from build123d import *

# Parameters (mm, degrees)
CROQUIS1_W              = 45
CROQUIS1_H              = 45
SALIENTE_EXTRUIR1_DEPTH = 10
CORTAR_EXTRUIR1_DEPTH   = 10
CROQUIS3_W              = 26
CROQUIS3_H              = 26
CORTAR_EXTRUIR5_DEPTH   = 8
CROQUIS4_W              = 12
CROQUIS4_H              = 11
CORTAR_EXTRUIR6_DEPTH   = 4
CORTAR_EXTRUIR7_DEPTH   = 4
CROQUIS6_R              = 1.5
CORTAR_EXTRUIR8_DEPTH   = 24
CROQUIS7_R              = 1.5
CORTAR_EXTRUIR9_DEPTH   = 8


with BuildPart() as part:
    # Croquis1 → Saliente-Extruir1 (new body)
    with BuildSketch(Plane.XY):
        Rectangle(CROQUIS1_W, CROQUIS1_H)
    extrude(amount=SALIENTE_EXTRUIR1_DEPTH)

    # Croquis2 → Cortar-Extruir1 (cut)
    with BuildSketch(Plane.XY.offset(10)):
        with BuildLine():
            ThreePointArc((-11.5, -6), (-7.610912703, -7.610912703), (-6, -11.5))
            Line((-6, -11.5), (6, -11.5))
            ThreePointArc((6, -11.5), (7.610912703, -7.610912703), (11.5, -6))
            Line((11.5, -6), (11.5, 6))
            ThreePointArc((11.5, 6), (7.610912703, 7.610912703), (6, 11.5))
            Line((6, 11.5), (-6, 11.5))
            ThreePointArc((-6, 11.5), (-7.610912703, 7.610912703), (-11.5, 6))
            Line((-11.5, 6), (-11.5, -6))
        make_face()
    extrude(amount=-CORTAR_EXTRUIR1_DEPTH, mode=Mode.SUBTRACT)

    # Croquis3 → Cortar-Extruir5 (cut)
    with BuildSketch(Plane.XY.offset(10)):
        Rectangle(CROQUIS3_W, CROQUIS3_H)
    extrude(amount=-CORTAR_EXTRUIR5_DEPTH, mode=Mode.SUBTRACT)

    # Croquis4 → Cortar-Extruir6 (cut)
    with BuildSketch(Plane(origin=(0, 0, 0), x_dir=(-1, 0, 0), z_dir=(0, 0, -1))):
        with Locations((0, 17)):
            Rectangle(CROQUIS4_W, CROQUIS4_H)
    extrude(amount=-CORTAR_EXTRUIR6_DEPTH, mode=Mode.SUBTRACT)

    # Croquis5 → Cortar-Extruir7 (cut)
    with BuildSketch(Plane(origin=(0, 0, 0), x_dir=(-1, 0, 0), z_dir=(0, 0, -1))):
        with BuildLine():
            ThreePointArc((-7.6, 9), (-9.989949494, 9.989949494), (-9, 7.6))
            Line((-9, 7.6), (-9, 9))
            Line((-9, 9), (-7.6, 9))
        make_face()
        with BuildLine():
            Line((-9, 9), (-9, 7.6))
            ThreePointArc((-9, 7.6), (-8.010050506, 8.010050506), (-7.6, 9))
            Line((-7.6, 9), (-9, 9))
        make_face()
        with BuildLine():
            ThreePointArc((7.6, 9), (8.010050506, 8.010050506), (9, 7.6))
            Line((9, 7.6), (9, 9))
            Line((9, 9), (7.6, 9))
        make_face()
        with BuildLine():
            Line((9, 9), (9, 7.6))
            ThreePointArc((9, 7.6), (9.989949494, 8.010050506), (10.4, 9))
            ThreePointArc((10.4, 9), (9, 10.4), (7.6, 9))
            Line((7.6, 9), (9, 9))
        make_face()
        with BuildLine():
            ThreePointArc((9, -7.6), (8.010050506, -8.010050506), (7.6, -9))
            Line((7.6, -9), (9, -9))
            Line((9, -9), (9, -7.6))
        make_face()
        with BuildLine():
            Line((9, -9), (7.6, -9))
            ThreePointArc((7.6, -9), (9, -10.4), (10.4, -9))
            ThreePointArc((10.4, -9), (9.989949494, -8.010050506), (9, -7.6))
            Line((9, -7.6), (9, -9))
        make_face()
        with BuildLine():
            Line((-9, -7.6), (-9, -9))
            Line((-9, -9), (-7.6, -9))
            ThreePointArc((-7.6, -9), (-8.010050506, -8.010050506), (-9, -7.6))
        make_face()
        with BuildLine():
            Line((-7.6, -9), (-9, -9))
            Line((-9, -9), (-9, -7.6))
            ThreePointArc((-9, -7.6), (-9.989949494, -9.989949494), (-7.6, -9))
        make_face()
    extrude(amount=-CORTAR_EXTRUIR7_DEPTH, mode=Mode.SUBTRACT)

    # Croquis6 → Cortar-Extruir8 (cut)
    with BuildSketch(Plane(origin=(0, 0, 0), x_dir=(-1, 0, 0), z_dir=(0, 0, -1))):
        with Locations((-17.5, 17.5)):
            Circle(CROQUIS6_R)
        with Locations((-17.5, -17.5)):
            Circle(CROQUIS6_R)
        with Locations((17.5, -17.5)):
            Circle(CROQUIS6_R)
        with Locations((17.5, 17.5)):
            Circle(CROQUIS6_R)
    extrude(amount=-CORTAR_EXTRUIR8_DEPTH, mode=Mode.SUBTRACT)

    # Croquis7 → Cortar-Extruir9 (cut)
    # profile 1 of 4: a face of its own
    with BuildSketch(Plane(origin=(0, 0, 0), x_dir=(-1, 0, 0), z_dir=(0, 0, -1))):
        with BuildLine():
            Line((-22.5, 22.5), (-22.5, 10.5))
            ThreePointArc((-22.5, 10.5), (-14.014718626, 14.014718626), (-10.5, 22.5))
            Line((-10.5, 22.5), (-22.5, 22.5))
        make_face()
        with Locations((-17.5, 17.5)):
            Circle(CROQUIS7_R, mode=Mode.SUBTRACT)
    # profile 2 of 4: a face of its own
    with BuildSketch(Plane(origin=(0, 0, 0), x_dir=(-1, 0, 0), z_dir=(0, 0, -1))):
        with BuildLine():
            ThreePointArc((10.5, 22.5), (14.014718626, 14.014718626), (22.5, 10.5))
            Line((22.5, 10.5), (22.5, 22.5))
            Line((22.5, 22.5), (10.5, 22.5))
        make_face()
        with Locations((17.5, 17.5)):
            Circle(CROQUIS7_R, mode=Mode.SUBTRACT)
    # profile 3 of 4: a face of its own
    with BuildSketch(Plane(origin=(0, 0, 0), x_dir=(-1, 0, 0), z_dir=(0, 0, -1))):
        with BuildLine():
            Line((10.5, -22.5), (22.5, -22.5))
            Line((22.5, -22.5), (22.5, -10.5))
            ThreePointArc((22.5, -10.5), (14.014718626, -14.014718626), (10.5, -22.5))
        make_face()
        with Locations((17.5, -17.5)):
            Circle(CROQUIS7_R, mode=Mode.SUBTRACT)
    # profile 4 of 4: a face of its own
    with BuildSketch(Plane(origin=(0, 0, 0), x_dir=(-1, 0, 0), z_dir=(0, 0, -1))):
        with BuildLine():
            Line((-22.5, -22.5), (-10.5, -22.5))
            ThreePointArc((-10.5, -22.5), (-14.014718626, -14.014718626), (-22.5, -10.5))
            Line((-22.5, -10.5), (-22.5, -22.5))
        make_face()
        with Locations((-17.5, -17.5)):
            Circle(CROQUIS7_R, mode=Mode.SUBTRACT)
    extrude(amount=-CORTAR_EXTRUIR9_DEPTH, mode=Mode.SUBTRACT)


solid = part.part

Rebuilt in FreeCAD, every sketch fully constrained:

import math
import FreeCAD as App
import Part
import Sketcher
from FreeCAD import Vector

doc = App.newDocument("Part")
body = doc.addObject("PartDesign::Body", "Body")

# Sketch on XY plane
sketch1 = doc.addObject("Sketcher::SketchObject", "Sketch")
body.addObject(sketch1)
sketch1.AttachmentSupport = (doc.XY_Plane, [""])
sketch1.MapMode = "FlatFace"
sketch1.addGeometry([
    Part.LineSegment(Vector(-22.5, 22.5, 0), Vector(-22.5, -22.5, 0)),
    Part.LineSegment(Vector(-22.5, -22.5, 0), Vector(22.5, -22.5, 0)),
    Part.LineSegment(Vector(22.5, -22.5, 0), Vector(22.5, 22.5, 0)),
    Part.LineSegment(Vector(22.5, 22.5, 0), Vector(-22.5, 22.5, 0)),
], False)
sketch1.addConstraint([
    Sketcher.Constraint("Coincident", 0, 2, 1, 1),
    Sketcher.Constraint("Coincident", 1, 2, 2, 1),
    Sketcher.Constraint("Coincident", 2, 2, 3, 1),
    Sketcher.Constraint("Coincident", 3, 2, 0, 1),
    Sketcher.Constraint("Vertical", 0),
    Sketcher.Constraint("Horizontal", 1),
    Sketcher.Constraint("Vertical", 2),
    Sketcher.Constraint("Horizontal", 3),
    Sketcher.Constraint("Symmetric", 0, 2, 2, 2, -1, 1),
    Sketcher.Constraint("Equal", 3, 0),
    Sketcher.Constraint("DistanceX", 1, 1, 1, 2, 45.0),
])
pad1 = doc.addObject("PartDesign::Pad", "Pad")
body.addObject(pad1)
pad1.Profile = sketch1
pad1.Length = 10

# Sketch on XY plane
sketch2 = doc.addObject("Sketcher::SketchObject", "Sketch001")
body.addObject(sketch2)
sketch2.AttachmentSupport = (doc.XY_Plane, [""])
sketch2.MapMode = "FlatFace"
sketch2.AttachmentOffset = App.Placement(Vector(0, 0, 10), App.Rotation())
sketch2.addGeometry([
    Part.ArcOfCircle(Part.Circle(Vector(-11.5, -11.5, 0), Vector(0, 0, 1), 5.5), math.radians(0), math.radians(90)),  # 0
    Part.LineSegment(Vector(-6, -11.5, 0), Vector(6, -11.5, 0)),  # 1
    Part.ArcOfCircle(Part.Circle(Vector(11.5, -11.5, 0), Vector(0, 0, 1), 5.5), math.radians(90), math.radians(180)),  # 2
    Part.LineSegment(Vector(11.5, -6, 0), Vector(11.5, 6, 0)),  # 3
    Part.ArcOfCircle(Part.Circle(Vector(11.5, 11.5, 0), Vector(0, 0, 1), 5.5), math.radians(180), math.radians(270)),  # 4
    Part.LineSegment(Vector(6, 11.5, 0), Vector(-6, 11.5, 0)),  # 5
    Part.ArcOfCircle(Part.Circle(Vector(-11.5, 11.5, 0), Vector(0, 0, 1), 5.5), math.radians(-90), math.radians(0)),  # 6
    Part.LineSegment(Vector(-11.5, 6, 0), Vector(-11.5, -6, 0)),  # 7
], False)
sketch2.addConstraint([
    Sketcher.Constraint("Coincident", 0, 1, 1, 1),
    Sketcher.Constraint("Coincident", 1, 2, 2, 2),
    Sketcher.Constraint("Coincident", 2, 1, 3, 1),
    Sketcher.Constraint("Coincident", 3, 2, 4, 2),
    Sketcher.Constraint("Coincident", 4, 1, 5, 1),
    Sketcher.Constraint("Coincident", 5, 2, 6, 2),
    Sketcher.Constraint("Coincident", 6, 1, 7, 1),
    Sketcher.Constraint("Coincident", 7, 2, 0, 2),
    Sketcher.Constraint("Horizontal", 1),
    Sketcher.Constraint("Vertical", 3),
    Sketcher.Constraint("Horizontal", 5),
    Sketcher.Constraint("Vertical", 7),
    Sketcher.Constraint("Equal", 0, 2),
    Sketcher.Constraint("Equal", 2, 4),
    Sketcher.Constraint("Equal", 4, 6),
    Sketcher.Constraint("Symmetric", 0, 3, 4, 3, -1, 1),
    Sketcher.Constraint("Symmetric", 2, 3, 6, 3, -1, 1),
    Sketcher.Constraint("Symmetric", 0, 3, 2, 3, -2),
    Sketcher.Constraint("Horizontal", 2, 3, 0, 1),
    Sketcher.Constraint("Horizontal", 6, 3, 4, 1),
    Sketcher.Constraint("Vertical", 4, 3, 2, 1),
    Sketcher.Constraint("Vertical", 0, 3, 6, 1),
    Sketcher.Constraint("Equal", 5, 3),
    Sketcher.Constraint("Radius", 0, 5.5),
    Sketcher.Constraint("DistanceX", 1, 1, 1, 2, 12.0),
])
pocket1 = doc.addObject("PartDesign::Pocket", "Pocket")
body.addObject(pocket1)
pocket1.Profile = sketch2
pocket1.Length = 10

# Sketch on XY plane
sketch3 = doc.addObject("Sketcher::SketchObject", "Sketch002")
body.addObject(sketch3)
sketch3.AttachmentSupport = (doc.XY_Plane, [""])
sketch3.MapMode = "FlatFace"
sketch3.AttachmentOffset = App.Placement(Vector(0, 0, 10), App.Rotation())
sketch3.addGeometry([
    Part.LineSegment(Vector(-13, 13, 0), Vector(-13, -13, 0)),
    Part.LineSegment(Vector(-13, -13, 0), Vector(13, -13, 0)),
    Part.LineSegment(Vector(13, -13, 0), Vector(13, 13, 0)),
    Part.LineSegment(Vector(13, 13, 0), Vector(-13, 13, 0)),
], False)
sketch3.addConstraint([
    Sketcher.Constraint("Coincident", 0, 2, 1, 1),
    Sketcher.Constraint("Coincident", 1, 2, 2, 1),
    Sketcher.Constraint("Coincident", 2, 2, 3, 1),
    Sketcher.Constraint("Coincident", 3, 2, 0, 1),
    Sketcher.Constraint("Vertical", 0),
    Sketcher.Constraint("Horizontal", 1),
    Sketcher.Constraint("Vertical", 2),
    Sketcher.Constraint("Horizontal", 3),
    Sketcher.Constraint("Symmetric", 0, 2, 2, 2, -1, 1),
    Sketcher.Constraint("Equal", 3, 0),
    Sketcher.Constraint("DistanceX", 1, 1, 1, 2, 26.0),
])
pocket2 = doc.addObject("PartDesign::Pocket", "Pocket001")
body.addObject(pocket2)
pocket2.Profile = sketch3
pocket2.Length = 8

# Sketch on XY plane
sketch4 = doc.addObject("Sketcher::SketchObject", "Sketch003")
body.addObject(sketch4)
sketch4.AttachmentSupport = (doc.XY_Plane, [""])
sketch4.MapMode = "FlatFace"
sketch4.addGeometry([
    Part.LineSegment(Vector(6, 22.5, 0), Vector(6, 11.5, 0)),
    Part.LineSegment(Vector(6, 11.5, 0), Vector(-6, 11.5, 0)),
    Part.LineSegment(Vector(-6, 11.5, 0), Vector(-6, 22.5, 0)),
    Part.LineSegment(Vector(-6, 22.5, 0), Vector(6, 22.5, 0)),
], False)
sketch4.addConstraint([
    Sketcher.Constraint("Coincident", 0, 2, 1, 1),
    Sketcher.Constraint("Coincident", 1, 2, 2, 1),
    Sketcher.Constraint("Coincident", 2, 2, 3, 1),
    Sketcher.Constraint("Coincident", 3, 2, 0, 1),
    Sketcher.Constraint("Vertical", 0),
    Sketcher.Constraint("Horizontal", 1),
    Sketcher.Constraint("Vertical", 2),
    Sketcher.Constraint("Horizontal", 3),
    Sketcher.Constraint("DistanceX", 1, 2, 1, 1, 12.0),
    Sketcher.Constraint("DistanceY", 0, 2, 0, 1, 11.0),
    Sketcher.Constraint("DistanceX", -1, 1, 0, 2, 6.0),
    Sketcher.Constraint("DistanceY", -1, 1, 0, 2, 11.5),
])
pocket3 = doc.addObject("PartDesign::Pocket", "Pocket002")
body.addObject(pocket3)
pocket3.Profile = sketch4
pocket3.Length = 4
pocket3.Reversed = True

# Sketch on XY plane
sketch5 = doc.addObject("Sketcher::SketchObject", "Sketch004")
body.addObject(sketch5)
sketch5.AttachmentSupport = (doc.XY_Plane, [""])
sketch5.MapMode = "FlatFace"
sketch5.addGeometry([
    Part.ArcOfCircle(Part.Circle(Vector(9, 9, 0), Vector(0, 0, 1), 1.4), math.radians(-90), math.radians(180)),  # 0
    Part.ArcOfCircle(Part.Circle(Vector(9, 9, 0), Vector(0, 0, 1), 1.4), math.radians(180), math.radians(270)),  # 1
    Part.ArcOfCircle(Part.Circle(Vector(-9, 9, 0), Vector(0, 0, 1), 1.4), math.radians(-90), math.radians(0)),  # 2
    Part.ArcOfCircle(Part.Circle(Vector(-9, 9, 0), Vector(0, 0, 1), 1.4), math.radians(180), math.radians(270)),  # 3
    Part.ArcOfCircle(Part.Circle(Vector(-9, 9, 0), Vector(0, 0, 1), 1.4), math.radians(0), math.radians(180)),  # 4
    Part.ArcOfCircle(Part.Circle(Vector(-9, -9, 0), Vector(0, 0, 1), 1.4), math.radians(0), math.radians(90)),  # 5
    Part.ArcOfCircle(Part.Circle(Vector(-9, -9, 0), Vector(0, 0, 1), 1.4), math.radians(180), math.radians(360)),  # 6
    Part.ArcOfCircle(Part.Circle(Vector(-9, -9, 0), Vector(0, 0, 1), 1.4), math.radians(90), math.radians(180)),  # 7
    Part.ArcOfCircle(Part.Circle(Vector(9, -9, 0), Vector(0, 0, 1), 1.4), math.radians(90), math.radians(180)),  # 8
    Part.ArcOfCircle(Part.Circle(Vector(9, -9, 0), Vector(0, 0, 1), 1.4), math.radians(180), math.radians(450)),  # 9
], False)
sketch5.addConstraint([
    Sketcher.Constraint("Tangent", 0, 1, 1, 2),
    Sketcher.Constraint("Coincident", 1, 1, 0, 2),
    Sketcher.Constraint("Tangent", 2, 1, 3, 2),
    Sketcher.Constraint("Tangent", 3, 1, 4, 2),
    Sketcher.Constraint("Tangent", 4, 1, 2, 2),
    Sketcher.Constraint("Tangent", 5, 1, 6, 2),
    Sketcher.Constraint("Tangent", 6, 1, 7, 2),
    Sketcher.Constraint("Tangent", 7, 1, 5, 2),
    Sketcher.Constraint("Tangent", 8, 1, 9, 2),
    Sketcher.Constraint("Coincident", 9, 1, 8, 2),
    Sketcher.Constraint("Equal", 1, 2),
    Sketcher.Constraint("Equal", 4, 5),
    Sketcher.Constraint("Equal", 7, 8),
    Sketcher.Constraint("Symmetric", 0, 3, 5, 3, -1, 1),
    Sketcher.Constraint("Symmetric", 2, 3, 8, 3, -1, 1),
    Sketcher.Constraint("Symmetric", 0, 3, 2, 3, -2),
    Sketcher.Constraint("Horizontal", 4, 3, 1, 1),
    Sketcher.Constraint("Horizontal", 1, 1, 3, 1),
    Sketcher.Constraint("Horizontal", 3, 1, 4, 1),
    Sketcher.Constraint("Horizontal", 9, 3, 5, 1),
    Sketcher.Constraint("Horizontal", 5, 1, 6, 1),
    Sketcher.Constraint("Horizontal", 6, 1, 9, 1),
    Sketcher.Constraint("Vertical", 9, 3, 0, 1),
    Sketcher.Constraint("Vertical", 7, 3, 2, 1),
    Sketcher.Constraint("Vertical", 2, 1, 7, 1),
    Sketcher.Constraint("Vertical", 0, 1, 8, 1),
    Sketcher.Constraint("Radius", 0, 1.4),
    Sketcher.Constraint("DistanceX", -1, 1, 0, 3, 9.0),
    Sketcher.Constraint("DistanceY", -1, 1, 0, 3, 9.0),
])
pocket4 = doc.addObject("PartDesign::Pocket", "Pocket003")
body.addObject(pocket4)
pocket4.Profile = sketch5
pocket4.Length = 4
pocket4.Reversed = True

# Sketch on XY plane
sketch6 = doc.addObject("Sketcher::SketchObject", "Sketch005")
body.addObject(sketch6)
sketch6.AttachmentSupport = (doc.XY_Plane, [""])
sketch6.MapMode = "FlatFace"
sketch6.addGeometry([
    Part.Circle(Vector(17.5, 17.5, 0), Vector(0, 0, 1), 1.5),
    Part.Circle(Vector(17.5, -17.5, 0), Vector(0, 0, 1), 1.5),
    Part.Circle(Vector(-17.5, -17.5, 0), Vector(0, 0, 1), 1.5),
    Part.Circle(Vector(-17.5, 17.5, 0), Vector(0, 0, 1), 1.5),
], False)
sketch6.addConstraint([
    Sketcher.Constraint("Equal", 0, 1),
    Sketcher.Constraint("Equal", 1, 2),
    Sketcher.Constraint("Equal", 2, 3),
    Sketcher.Constraint("Symmetric", 0, 3, 2, 3, -1, 1),
    Sketcher.Constraint("Symmetric", 1, 3, 3, 3, -1, 1),
    Sketcher.Constraint("Symmetric", 1, 3, 2, 3, -2),
    Sketcher.Constraint("Diameter", 0, 3.0),
    Sketcher.Constraint("DistanceY", 1, 3, 0, 3, 35.0),
    Sketcher.Constraint("DistanceX", 2, 3, 1, 3, 35.0),
])
pocket5 = doc.addObject("PartDesign::Pocket", "Pocket004")
body.addObject(pocket5)
pocket5.Profile = sketch6
pocket5.Length = 24
pocket5.Reversed = True

# Sketch on XY plane
sketch7 = doc.addObject("Sketcher::SketchObject", "Sketch006")
body.addObject(sketch7)
sketch7.AttachmentSupport = (doc.XY_Plane, [""])
sketch7.MapMode = "FlatFace"
sketch7.addGeometry([
    Part.LineSegment(Vector(22.5, 22.5, 0), Vector(22.5, 10.5, 0)),  # 0
    Part.ArcOfCircle(Part.Circle(Vector(22.5, 22.5, 0), Vector(0, 0, 1), 12), math.radians(-180), math.radians(-90)),  # 1
    Part.LineSegment(Vector(10.5, 22.5, 0), Vector(22.5, 22.5, 0)),  # 2
    Part.Circle(Vector(17.5, 17.5, 0), Vector(0, 0, 1), 1.5),  # 3
    Part.ArcOfCircle(Part.Circle(Vector(-22.5, 22.5, 0), Vector(0, 0, 1), 12), math.radians(-90), math.radians(0)),  # 4
    Part.LineSegment(Vector(-22.5, 10.5, 0), Vector(-22.5, 22.5, 0)),  # 5
    Part.LineSegment(Vector(-22.5, 22.5, 0), Vector(-10.5, 22.5, 0)),  # 6
    Part.Circle(Vector(-17.5, 17.5, 0), Vector(0, 0, 1), 1.5),  # 7
    Part.LineSegment(Vector(-10.5, -22.5, 0), Vector(-22.5, -22.5, 0)),  # 8
    Part.LineSegment(Vector(-22.5, -22.5, 0), Vector(-22.5, -10.5, 0)),  # 9
    Part.ArcOfCircle(Part.Circle(Vector(-22.5, -22.5, 0), Vector(0, 0, 1), 12), math.radians(0), math.radians(90)),  # 10
    Part.Circle(Vector(-17.5, -17.5, 0), Vector(0, 0, 1), 1.5),  # 11
    Part.LineSegment(Vector(22.5, -22.5, 0), Vector(10.5, -22.5, 0)),  # 12
    Part.ArcOfCircle(Part.Circle(Vector(22.5, -22.5, 0), Vector(0, 0, 1), 12), math.radians(90), math.radians(180)),  # 13
    Part.LineSegment(Vector(22.5, -10.5, 0), Vector(22.5, -22.5, 0)),  # 14
    Part.Circle(Vector(17.5, -17.5, 0), Vector(0, 0, 1), 1.5),  # 15
], False)
sketch7.addConstraint([
    Sketcher.Constraint("Coincident", 0, 2, 1, 2),
    Sketcher.Constraint("Coincident", 1, 1, 2, 1),
    Sketcher.Constraint("Coincident", 2, 2, 0, 1),
    Sketcher.Constraint("Coincident", 4, 1, 5, 1),
    Sketcher.Constraint("Coincident", 5, 2, 6, 1),
    Sketcher.Constraint("Coincident", 6, 2, 4, 2),
    Sketcher.Constraint("Coincident", 8, 2, 9, 1),
    Sketcher.Constraint("Coincident", 9, 2, 10, 2),
    Sketcher.Constraint("Coincident", 10, 1, 8, 1),
    Sketcher.Constraint("Coincident", 12, 2, 13, 2),
    Sketcher.Constraint("Coincident", 13, 1, 14, 1),
    Sketcher.Constraint("Coincident", 14, 2, 12, 1),
    Sketcher.Constraint("Vertical", 0),
    Sketcher.Constraint("Horizontal", 2),
    Sketcher.Constraint("Vertical", 5),
    Sketcher.Constraint("Horizontal", 6),
    Sketcher.Constraint("Horizontal", 8),
    Sketcher.Constraint("Vertical", 9),
    Sketcher.Constraint("Horizontal", 12),
    Sketcher.Constraint("Vertical", 14),
    Sketcher.Constraint("Coincident", 2, 2, 1, 3),
    Sketcher.Constraint("Coincident", 5, 2, 4, 3),
    Sketcher.Constraint("Coincident", 8, 2, 10, 3),
    Sketcher.Constraint("Coincident", 14, 2, 13, 3),
    Sketcher.Constraint("Equal", 1, 4),
    Sketcher.Constraint("Equal", 3, 7),
    Sketcher.Constraint("Equal", 4, 10),
    Sketcher.Constraint("Equal", 7, 11),
    Sketcher.Constraint("Equal", 10, 13),
    Sketcher.Constraint("Equal", 11, 15),
    Sketcher.Constraint("Symmetric", 1, 3, 10, 3, -1, 1),
    Sketcher.Constraint("Symmetric", 3, 3, 11, 3, -1, 1),
    Sketcher.Constraint("Symmetric", 4, 3, 13, 3, -1, 1),
    Sketcher.Constraint("Symmetric", 7, 3, 15, 3, -1, 1),
    Sketcher.Constraint("Symmetric", 1, 3, 4, 3, -2),
    Sketcher.Constraint("Symmetric", 3, 3, 7, 3, -2),
    Sketcher.Constraint("Diameter", 3, 3.0),
    Sketcher.Constraint("Radius", 1, 12.0),
    Sketcher.Constraint("DistanceX", 3, 3, 1, 3, 5.0),
    Sketcher.Constraint("DistanceY", 3, 3, 1, 3, 5.0),
    Sketcher.Constraint("DistanceX", 4, 3, 3, 3, 40.0),
    Sketcher.Constraint("DistanceY", 10, 3, 7, 3, 40.0),
])
pocket6 = doc.addObject("PartDesign::Pocket", "Pocket005")
body.addObject(pocket6)
pocket6.Profile = sketch7
pocket6.Length = 8
pocket6.Reversed = True

doc.recompute()
